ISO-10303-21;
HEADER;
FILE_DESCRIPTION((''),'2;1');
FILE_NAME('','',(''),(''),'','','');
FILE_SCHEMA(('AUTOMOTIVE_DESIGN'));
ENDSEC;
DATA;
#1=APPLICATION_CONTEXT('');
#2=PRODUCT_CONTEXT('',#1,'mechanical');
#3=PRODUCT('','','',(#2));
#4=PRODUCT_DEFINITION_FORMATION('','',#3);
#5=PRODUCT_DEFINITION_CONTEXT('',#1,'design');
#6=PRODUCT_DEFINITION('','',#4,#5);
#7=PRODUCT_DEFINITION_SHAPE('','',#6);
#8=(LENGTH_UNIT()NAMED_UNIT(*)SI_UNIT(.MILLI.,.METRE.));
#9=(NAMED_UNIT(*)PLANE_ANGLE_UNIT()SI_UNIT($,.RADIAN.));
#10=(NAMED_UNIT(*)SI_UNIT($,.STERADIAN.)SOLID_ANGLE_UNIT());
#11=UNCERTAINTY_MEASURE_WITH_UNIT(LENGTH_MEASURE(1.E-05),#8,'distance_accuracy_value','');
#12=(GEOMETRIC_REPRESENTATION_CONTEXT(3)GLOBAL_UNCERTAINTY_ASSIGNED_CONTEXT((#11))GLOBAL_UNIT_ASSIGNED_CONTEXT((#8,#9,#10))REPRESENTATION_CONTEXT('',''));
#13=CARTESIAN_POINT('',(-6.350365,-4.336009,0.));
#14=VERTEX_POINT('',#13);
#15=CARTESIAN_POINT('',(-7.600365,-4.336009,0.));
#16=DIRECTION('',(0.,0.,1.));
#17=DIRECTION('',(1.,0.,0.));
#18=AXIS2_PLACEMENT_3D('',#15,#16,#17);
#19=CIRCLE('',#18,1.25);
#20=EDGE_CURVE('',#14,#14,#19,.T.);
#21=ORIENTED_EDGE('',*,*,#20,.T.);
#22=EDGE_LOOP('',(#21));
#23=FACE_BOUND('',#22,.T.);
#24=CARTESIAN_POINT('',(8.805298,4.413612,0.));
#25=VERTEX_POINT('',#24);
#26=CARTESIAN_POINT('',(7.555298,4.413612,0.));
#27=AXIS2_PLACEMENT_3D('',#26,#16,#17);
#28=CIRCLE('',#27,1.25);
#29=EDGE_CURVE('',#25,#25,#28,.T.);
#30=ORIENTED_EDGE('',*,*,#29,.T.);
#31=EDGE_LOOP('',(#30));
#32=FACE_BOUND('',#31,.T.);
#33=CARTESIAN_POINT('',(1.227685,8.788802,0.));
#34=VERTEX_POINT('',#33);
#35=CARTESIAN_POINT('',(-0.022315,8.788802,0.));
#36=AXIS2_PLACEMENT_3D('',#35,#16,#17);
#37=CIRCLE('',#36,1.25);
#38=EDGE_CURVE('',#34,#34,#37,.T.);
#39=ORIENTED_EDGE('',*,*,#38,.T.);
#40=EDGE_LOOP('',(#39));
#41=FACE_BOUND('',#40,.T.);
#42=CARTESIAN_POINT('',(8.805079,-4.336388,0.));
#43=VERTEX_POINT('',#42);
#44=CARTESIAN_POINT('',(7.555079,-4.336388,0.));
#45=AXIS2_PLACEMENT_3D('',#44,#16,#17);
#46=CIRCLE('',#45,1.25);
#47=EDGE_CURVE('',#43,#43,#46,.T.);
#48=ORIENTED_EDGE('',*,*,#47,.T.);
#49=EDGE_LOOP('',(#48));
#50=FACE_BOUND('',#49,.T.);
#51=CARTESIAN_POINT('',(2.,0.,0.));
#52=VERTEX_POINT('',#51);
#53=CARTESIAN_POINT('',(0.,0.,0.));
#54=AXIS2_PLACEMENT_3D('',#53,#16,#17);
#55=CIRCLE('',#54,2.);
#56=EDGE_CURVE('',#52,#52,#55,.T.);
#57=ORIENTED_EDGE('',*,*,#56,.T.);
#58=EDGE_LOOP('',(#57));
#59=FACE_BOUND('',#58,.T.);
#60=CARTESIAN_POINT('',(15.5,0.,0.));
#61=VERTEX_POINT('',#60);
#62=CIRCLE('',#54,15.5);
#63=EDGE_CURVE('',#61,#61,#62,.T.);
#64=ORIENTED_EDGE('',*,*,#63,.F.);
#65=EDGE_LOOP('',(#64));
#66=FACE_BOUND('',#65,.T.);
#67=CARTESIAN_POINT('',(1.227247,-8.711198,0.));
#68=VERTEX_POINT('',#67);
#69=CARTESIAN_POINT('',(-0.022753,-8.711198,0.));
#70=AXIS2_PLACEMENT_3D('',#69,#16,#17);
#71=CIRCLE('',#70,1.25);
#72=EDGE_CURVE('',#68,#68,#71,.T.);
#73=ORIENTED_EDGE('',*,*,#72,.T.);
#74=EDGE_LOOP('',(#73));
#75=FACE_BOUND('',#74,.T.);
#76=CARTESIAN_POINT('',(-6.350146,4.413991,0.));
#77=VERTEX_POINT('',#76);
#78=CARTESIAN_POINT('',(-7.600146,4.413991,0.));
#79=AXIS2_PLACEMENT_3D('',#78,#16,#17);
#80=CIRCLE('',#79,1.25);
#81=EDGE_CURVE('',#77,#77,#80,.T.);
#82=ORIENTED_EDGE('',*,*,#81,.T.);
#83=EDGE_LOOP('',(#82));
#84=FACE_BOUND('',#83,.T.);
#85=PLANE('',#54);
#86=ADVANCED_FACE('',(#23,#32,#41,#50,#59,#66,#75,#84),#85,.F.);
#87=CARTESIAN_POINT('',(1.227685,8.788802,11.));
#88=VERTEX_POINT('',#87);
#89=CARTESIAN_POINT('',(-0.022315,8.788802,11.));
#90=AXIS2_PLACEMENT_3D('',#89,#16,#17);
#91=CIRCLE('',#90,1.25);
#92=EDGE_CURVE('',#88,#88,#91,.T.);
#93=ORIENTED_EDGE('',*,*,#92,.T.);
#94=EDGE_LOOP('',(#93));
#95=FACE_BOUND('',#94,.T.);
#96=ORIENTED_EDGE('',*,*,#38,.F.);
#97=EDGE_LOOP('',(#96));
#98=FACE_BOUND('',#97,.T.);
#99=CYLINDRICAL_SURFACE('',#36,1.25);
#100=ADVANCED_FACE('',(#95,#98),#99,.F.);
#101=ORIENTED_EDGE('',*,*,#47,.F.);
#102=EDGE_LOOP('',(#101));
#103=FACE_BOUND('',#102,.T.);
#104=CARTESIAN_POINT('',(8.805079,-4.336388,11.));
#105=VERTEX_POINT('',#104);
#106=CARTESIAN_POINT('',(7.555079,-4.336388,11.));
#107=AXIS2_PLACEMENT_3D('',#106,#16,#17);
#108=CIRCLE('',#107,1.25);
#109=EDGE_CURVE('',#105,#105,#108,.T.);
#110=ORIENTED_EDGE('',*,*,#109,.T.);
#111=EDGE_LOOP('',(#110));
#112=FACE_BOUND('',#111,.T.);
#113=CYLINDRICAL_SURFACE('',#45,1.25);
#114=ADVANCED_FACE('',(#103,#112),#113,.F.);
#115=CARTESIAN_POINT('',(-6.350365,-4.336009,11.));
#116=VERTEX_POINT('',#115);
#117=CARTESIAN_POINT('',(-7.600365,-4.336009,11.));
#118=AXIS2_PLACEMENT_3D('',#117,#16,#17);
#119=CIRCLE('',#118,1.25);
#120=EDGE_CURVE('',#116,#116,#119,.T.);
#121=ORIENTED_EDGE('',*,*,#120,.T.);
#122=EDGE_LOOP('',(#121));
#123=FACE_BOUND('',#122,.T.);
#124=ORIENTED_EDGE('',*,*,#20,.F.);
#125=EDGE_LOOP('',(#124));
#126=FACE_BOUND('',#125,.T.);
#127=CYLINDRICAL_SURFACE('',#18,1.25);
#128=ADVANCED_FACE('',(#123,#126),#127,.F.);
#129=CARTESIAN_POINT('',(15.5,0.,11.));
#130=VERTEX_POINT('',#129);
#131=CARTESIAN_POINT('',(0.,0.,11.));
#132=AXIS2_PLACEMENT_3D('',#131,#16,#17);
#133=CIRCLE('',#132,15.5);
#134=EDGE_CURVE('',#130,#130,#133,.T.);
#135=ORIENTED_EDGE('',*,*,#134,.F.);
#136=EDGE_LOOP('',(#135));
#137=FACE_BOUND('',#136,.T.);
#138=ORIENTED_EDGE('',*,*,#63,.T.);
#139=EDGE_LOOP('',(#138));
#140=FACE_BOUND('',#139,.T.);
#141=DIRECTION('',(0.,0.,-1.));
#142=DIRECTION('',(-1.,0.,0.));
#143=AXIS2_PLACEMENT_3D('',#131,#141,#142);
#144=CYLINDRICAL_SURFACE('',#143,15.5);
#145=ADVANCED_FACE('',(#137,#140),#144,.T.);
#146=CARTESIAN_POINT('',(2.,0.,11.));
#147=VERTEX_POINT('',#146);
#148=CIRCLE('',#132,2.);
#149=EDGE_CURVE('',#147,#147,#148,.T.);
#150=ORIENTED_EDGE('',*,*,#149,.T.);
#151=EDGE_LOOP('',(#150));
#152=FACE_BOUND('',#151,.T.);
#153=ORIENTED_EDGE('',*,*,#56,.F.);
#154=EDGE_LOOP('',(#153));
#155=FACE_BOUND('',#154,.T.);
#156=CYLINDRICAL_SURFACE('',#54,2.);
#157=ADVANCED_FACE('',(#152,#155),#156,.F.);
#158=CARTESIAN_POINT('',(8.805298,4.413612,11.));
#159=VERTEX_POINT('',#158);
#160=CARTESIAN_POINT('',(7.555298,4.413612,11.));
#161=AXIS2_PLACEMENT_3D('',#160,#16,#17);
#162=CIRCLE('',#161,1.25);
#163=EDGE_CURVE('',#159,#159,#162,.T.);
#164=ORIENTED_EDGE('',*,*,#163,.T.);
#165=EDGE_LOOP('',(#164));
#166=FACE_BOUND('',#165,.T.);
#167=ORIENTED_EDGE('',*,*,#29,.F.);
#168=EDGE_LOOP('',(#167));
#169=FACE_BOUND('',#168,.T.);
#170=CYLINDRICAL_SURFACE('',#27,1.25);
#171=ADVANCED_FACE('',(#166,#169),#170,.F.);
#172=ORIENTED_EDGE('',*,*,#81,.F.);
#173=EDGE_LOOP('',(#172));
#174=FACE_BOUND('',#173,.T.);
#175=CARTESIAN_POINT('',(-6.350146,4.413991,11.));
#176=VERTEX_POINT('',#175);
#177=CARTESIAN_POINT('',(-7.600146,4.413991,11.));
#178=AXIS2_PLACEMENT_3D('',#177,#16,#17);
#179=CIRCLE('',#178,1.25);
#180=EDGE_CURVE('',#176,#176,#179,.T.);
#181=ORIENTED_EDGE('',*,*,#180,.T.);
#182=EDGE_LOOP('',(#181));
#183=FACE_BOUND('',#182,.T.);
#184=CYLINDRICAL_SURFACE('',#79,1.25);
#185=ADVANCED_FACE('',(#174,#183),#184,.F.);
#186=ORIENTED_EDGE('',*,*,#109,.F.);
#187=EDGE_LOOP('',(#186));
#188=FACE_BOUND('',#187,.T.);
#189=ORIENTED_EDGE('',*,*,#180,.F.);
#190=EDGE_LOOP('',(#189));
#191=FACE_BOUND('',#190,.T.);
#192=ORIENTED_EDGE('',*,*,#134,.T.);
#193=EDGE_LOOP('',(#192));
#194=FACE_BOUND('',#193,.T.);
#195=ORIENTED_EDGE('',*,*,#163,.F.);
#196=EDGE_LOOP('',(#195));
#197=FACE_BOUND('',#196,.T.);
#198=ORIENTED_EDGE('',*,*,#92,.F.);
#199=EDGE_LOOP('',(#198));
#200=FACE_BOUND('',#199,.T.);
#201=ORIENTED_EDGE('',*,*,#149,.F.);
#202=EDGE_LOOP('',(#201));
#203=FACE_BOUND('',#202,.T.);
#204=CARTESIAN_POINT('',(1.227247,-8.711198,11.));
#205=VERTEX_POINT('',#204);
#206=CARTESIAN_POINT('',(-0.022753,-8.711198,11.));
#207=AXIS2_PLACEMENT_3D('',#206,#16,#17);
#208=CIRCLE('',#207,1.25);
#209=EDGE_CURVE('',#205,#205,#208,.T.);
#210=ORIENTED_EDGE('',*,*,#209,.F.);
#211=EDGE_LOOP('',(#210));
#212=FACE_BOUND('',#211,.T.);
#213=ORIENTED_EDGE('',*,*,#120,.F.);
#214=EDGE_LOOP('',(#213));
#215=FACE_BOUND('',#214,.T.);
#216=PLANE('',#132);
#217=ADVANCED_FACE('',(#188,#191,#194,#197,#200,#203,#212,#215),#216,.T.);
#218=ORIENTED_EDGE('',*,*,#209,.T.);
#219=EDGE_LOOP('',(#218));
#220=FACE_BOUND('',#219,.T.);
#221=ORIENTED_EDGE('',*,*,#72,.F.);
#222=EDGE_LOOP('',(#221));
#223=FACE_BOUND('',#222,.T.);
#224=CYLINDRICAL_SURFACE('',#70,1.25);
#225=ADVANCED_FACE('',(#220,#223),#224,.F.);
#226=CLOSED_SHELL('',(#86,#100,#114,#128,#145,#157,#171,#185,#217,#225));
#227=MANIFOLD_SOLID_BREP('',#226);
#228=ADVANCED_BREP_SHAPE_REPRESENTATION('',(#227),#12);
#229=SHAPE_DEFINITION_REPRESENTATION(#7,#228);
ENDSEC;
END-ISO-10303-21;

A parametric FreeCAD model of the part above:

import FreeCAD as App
import Part
import Sketcher

V = App.Vector

doc = App.newDocument("Part")
body = doc.addObject("PartDesign::Body", "Body")

sketch1 = body.newObject("Sketcher::SketchObject", "Sketch")
sketch1.AttachmentSupport = (doc.getObject("XY_Plane"), [""])
sketch1.MapMode = "FlatFace"
sketch1.addGeometry(Part.Circle(V(0, 0, 0), V(0, 0, 1), 16), False)
sketch1.addConstraint([
    Sketcher.Constraint("Coincident", 0, 3, -1, 1),
    Sketcher.Constraint("Diameter", 0, 31.0),
])
pad1 = body.newObject("PartDesign::Pad", "Pad")
pad1.Profile = sketch1
pad1.Length = 11

sketch2 = body.newObject("Sketcher::SketchObject", "Sketch001")
sketch2.AttachmentSupport = (doc.getObject("XY_Plane"), [""])
sketch2.MapMode = "FlatFace"
sketch2.AttachmentOffset = App.Placement(V(0, 0, 11), App.Rotation())
sketch2.addGeometry([
    Part.Circle(V(0, 0, 0), V(0, 0, 1), 2),
    Part.Circle(V(7.6, 4.4, 0), V(0, 0, 1), 1.2),
    Part.Circle(V(7.6, -4.3, 0), V(0, 0, 1), 1.2),
    Part.Circle(V(0, -8.7, 0), V(0, 0, 1), 1.2),
    Part.Circle(V(-7.6, -4.3, 0), V(0, 0, 1), 1.2),
    Part.Circle(V(-7.6, 4.4, 0), V(0, 0, 1), 1.2),
    Part.Circle(V(0, 8.8, 0), V(0, 0, 1), 1.2),
], False)
sketch2.addConstraint([
    Sketcher.Constraint("Coincident", 0, 3, -1, 1),
    Sketcher.Constraint("Equal", 1, 2),
    Sketcher.Constraint("Equal", 2, 3),
    Sketcher.Constraint("Equal", 3, 4),
    Sketcher.Constraint("Equal", 4, 5),
    Sketcher.Constraint("Equal", 5, 6),
    Sketcher.Constraint("Diameter", 0, 4.0),
    Sketcher.Constraint("Diameter", 1, 2.5),
    Sketcher.Constraint("DistanceY", 2, 3, 1, 3, 8.75),
    Sketcher.Constraint("DistanceY", 4, 3, 5, 3, 8.75),
    Sketcher.Constraint("DistanceX", -1, 1, 1, 3, 7.555298),
    Sketcher.Constraint("DistanceY", 3, 3, -1, 1, 8.711198),
    Sketcher.Constraint("DistanceY", -1, 1, 6, 3, 8.788802),
    Sketcher.Constraint("DistanceY", -1, 1, 1, 3, 4.413612),
    Sketcher.Constraint("DistanceX", -1, 1, 2, 3, 7.555079),
    Sketcher.Constraint("DistanceY", 4, 3, -1, 1, 4.336009),
    Sketcher.Constraint("DistanceX", 3, 3, 2, 3, 7.577832),
    Sketcher.Constraint("DistanceX", 4, 3, 5, 3, 0.000219),
    Sketcher.Constraint("DistanceX", 5, 3, 6, 3, 7.577832),
    Sketcher.Constraint("DistanceX", 4, 3, -1, 1, 7.600365),
])
pocket1 = body.newObject("PartDesign::Pocket", "Pocket")
pocket1.Profile = sketch2
pocket1.Length = 11

doc.recompute()
